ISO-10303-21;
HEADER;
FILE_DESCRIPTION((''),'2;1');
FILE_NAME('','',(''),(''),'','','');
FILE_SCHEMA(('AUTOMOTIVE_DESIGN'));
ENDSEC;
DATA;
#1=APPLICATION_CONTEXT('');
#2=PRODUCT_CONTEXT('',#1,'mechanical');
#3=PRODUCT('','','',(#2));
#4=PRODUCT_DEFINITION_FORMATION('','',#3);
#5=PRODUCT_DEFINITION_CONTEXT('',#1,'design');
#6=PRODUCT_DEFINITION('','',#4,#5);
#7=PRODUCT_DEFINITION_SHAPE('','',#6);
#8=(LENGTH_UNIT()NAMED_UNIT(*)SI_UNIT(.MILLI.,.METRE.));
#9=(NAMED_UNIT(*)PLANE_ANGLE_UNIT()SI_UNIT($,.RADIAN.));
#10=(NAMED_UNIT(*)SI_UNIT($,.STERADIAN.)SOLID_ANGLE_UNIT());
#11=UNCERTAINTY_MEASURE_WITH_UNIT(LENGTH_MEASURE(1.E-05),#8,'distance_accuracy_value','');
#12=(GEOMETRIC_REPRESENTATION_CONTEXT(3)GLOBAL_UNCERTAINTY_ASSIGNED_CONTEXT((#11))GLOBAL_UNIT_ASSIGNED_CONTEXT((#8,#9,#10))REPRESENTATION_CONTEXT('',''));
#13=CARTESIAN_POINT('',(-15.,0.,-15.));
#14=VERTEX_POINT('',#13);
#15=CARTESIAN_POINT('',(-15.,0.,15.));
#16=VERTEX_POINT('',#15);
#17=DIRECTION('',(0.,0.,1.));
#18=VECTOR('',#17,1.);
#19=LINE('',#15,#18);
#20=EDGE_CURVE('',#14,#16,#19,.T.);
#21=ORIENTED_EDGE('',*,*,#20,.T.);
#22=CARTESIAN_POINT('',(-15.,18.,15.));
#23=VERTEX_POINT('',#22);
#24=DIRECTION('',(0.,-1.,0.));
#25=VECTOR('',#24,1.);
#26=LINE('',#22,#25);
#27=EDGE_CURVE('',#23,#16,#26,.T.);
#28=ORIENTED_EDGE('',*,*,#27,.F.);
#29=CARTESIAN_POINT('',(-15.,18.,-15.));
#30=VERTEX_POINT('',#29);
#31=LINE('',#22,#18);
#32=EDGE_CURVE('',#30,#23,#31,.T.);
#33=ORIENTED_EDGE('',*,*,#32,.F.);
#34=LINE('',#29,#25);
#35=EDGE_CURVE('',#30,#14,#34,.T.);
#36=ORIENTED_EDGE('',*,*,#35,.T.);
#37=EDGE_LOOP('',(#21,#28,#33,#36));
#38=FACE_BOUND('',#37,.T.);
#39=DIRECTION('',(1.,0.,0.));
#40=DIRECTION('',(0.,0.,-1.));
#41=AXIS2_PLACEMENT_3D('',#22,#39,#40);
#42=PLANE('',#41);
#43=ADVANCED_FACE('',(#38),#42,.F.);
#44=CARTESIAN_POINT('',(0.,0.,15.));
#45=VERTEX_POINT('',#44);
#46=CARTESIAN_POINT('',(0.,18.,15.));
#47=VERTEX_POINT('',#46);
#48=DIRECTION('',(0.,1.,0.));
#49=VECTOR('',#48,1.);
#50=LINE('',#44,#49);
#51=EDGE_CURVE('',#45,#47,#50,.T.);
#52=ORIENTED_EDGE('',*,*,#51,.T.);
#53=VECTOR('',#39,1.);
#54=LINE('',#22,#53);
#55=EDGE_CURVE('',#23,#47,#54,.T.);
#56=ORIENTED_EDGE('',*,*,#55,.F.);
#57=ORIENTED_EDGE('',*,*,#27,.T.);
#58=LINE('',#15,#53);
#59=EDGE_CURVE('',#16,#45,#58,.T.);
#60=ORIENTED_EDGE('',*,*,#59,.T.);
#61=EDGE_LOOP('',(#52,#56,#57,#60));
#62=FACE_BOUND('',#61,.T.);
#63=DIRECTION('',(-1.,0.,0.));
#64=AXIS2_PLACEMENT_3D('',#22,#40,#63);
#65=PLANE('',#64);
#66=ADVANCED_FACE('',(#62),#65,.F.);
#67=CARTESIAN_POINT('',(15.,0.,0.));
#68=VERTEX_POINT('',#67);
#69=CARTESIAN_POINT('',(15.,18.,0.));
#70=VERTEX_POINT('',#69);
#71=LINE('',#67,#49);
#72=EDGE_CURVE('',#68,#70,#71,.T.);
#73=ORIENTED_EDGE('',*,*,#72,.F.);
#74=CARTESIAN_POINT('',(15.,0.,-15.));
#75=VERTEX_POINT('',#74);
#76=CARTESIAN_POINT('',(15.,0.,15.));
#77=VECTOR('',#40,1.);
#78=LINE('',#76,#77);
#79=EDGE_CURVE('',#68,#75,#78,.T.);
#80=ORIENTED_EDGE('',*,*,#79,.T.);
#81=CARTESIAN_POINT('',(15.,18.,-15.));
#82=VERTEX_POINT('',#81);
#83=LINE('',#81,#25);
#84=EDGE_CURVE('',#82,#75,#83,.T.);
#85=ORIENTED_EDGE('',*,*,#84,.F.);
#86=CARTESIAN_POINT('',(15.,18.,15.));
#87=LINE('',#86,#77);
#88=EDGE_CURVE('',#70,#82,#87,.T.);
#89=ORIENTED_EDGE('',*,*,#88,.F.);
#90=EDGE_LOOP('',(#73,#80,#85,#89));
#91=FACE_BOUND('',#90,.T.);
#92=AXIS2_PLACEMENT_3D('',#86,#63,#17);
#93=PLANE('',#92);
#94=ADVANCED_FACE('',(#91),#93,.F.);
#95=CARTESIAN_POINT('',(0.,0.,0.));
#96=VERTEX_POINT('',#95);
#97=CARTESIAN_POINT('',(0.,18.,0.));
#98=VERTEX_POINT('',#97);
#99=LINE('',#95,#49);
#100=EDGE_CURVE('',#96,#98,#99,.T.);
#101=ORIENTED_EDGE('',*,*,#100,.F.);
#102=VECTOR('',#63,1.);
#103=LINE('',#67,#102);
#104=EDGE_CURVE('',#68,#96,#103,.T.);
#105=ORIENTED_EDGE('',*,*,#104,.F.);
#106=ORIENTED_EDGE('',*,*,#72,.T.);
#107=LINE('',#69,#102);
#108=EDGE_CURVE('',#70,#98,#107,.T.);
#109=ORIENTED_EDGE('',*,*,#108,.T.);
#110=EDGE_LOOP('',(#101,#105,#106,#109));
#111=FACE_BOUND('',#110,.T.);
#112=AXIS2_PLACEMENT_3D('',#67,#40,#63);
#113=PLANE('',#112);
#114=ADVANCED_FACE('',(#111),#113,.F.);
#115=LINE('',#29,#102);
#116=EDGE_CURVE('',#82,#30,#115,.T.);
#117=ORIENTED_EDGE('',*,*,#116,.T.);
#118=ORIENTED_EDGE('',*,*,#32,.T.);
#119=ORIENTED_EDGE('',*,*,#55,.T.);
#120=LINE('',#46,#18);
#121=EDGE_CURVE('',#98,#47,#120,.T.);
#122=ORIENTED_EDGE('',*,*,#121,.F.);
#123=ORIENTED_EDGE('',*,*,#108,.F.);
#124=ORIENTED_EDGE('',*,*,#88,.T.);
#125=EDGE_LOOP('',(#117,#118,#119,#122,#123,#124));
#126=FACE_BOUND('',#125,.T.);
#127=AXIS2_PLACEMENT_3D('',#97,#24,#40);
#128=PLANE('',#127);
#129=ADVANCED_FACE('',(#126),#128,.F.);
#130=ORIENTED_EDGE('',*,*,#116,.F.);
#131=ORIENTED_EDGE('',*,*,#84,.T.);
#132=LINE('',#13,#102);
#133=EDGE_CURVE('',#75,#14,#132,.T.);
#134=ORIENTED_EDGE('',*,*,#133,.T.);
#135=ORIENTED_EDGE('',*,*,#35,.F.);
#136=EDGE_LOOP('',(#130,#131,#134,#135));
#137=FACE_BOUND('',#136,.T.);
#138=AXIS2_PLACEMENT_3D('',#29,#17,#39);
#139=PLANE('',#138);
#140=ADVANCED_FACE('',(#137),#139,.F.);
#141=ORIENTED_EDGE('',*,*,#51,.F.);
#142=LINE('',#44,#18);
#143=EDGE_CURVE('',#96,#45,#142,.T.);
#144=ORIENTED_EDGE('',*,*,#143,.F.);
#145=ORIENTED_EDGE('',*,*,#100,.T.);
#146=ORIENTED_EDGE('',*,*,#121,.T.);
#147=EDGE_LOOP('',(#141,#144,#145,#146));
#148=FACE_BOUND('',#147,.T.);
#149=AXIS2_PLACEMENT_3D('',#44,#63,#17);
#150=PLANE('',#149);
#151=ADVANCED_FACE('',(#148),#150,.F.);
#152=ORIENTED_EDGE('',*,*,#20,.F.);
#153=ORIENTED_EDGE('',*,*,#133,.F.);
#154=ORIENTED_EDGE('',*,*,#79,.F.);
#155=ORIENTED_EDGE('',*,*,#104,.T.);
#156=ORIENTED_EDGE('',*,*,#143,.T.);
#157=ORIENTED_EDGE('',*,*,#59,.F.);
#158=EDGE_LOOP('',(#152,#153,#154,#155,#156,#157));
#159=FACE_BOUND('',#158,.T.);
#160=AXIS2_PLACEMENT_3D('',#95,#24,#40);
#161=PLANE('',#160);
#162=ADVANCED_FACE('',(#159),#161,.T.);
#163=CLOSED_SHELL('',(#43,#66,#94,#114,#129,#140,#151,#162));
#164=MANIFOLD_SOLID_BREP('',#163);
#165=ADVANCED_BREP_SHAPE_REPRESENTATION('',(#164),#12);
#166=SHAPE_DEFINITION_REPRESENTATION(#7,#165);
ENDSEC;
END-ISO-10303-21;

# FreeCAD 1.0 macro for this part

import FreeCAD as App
import Part
import Sketcher

V = App.Vector

doc = App.newDocument("Part")
body = doc.addObject("PartDesign::Body", "Body")

# Sketch on XZ plane
sketch1 = body.newObject("Sketcher::SketchObject", "Sketch")
sketch1.AttachmentSupport = (doc.getObject("XZ_Plane"), [""])
sketch1.MapMode = "FlatFace"
sketch1.addGeometry([
    Part.LineSegment(V(-15, -15, 0), V(-15, 15, 0)),
    Part.LineSegment(V(-15, 15, 0), V(15, 15, 0)),
    Part.LineSegment(V(15, 15, 0), V(15, -15, 0)),
    Part.LineSegment(V(15, -15, 0), V(-15, -15, 0)),
], False)
sketch1.addConstraint([
    Sketcher.Constraint("Coincident", 0, 2, 1, 1),
    Sketcher.Constraint("Coincident", 1, 2, 2, 1),
    Sketcher.Constraint("Coincident", 2, 2, 3, 1),
    Sketcher.Constraint("Coincident", 3, 2, 0, 1),
    Sketcher.Constraint("Vertical", 0),
    Sketcher.Constraint("Horizontal", 1),
    Sketcher.Constraint("Vertical", 2),
    Sketcher.Constraint("Horizontal", 3),
    Sketcher.Constraint("Symmetric", 0, 2, 2, 2, -1, 1),
    Sketcher.Constraint("Equal", 3, 0),
    Sketcher.Constraint("DistanceX", 1, 1, 1, 2, 30.0),
])
pad1 = body.newObject("PartDesign::Pad", "Pad")
pad1.Profile = sketch1
pad1.Length = 18
pad1.Reversed = True

# Sketch on XZ plane
sketch2 = body.newObject("Sketcher::SketchObject", "Sketch001")
sketch2.AttachmentSupport = (doc.getObject("XZ_Plane"), [""])
sketch2.MapMode = "FlatFace"
sketch2.AttachmentOffset = App.Placement(V(0, 0, -18), App.Rotation())
sketch2.addGeometry([
    Part.LineSegment(V(0, 0, 0), V(0, 15, 0)),
    Part.LineSegment(V(0, 15, 0), V(15, 15, 0)),
    Part.LineSegment(V(15, 15, 0), V(15, 0, 0)),
    Part.LineSegment(V(15, 0, 0), V(0, 0, 0)),
], False)
sketch2.addConstraint([
    Sketcher.Constraint("Coincident", 0, 2, 1, 1),
    Sketcher.Constraint("Coincident", 1, 2, 2, 1),
    Sketcher.Constraint("Coincident", 2, 2, 3, 1),
    Sketcher.Constraint("Coincident", 3, 2, 0, 1),
    Sketcher.Constraint("Vertical", 0),
    Sketcher.Constraint("Horizontal", 1),
    Sketcher.Constraint("Vertical", 2),
    Sketcher.Constraint("Horizontal", 3),
    Sketcher.Constraint("Coincident", 3, 2, -1, 1),
    Sketcher.Constraint("Equal", 3, 0),
    Sketcher.Constraint("DistanceX", 1, 1, 1, 2, 15.0),
])
pocket1 = body.newObject("PartDesign::Pocket", "Pocket")
pocket1.Profile = sketch2
pocket1.Type = "ThroughAll"
pocket1.Reversed = True

doc.recompute()
